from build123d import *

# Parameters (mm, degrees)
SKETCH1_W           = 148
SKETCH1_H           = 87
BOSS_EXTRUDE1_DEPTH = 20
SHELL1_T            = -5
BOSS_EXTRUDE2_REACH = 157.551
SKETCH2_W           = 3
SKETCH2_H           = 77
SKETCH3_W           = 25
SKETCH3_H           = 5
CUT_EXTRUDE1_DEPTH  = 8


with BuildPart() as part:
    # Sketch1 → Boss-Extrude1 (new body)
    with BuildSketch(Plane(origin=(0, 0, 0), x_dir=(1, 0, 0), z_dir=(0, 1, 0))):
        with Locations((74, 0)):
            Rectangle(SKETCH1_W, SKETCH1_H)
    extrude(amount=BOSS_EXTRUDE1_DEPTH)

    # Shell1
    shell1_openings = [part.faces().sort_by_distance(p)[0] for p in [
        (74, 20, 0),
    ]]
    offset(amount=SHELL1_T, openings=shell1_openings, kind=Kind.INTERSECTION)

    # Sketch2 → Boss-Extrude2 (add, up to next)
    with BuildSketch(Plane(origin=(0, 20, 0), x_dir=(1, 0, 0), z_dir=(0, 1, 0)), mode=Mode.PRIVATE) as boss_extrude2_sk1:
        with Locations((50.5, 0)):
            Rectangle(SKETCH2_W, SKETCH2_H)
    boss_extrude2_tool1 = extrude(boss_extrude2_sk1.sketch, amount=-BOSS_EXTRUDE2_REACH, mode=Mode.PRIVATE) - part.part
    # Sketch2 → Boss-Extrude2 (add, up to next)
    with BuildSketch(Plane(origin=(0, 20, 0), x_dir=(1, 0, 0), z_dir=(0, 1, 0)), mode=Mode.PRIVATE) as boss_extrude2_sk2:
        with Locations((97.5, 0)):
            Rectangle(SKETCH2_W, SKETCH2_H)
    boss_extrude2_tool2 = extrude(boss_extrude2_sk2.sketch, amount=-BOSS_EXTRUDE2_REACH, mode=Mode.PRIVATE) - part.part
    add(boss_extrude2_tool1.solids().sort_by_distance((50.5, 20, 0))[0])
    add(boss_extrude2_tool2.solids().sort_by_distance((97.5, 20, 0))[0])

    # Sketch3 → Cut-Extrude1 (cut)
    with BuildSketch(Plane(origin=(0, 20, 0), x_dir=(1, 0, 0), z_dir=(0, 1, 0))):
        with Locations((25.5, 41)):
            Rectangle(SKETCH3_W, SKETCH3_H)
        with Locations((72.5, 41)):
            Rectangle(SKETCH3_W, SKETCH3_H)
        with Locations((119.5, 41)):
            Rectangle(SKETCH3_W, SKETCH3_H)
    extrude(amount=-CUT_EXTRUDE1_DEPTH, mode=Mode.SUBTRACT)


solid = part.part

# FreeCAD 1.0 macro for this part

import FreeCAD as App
import Part
import Sketcher

V = App.Vector
Q = App.Units.Quantity


def faces_at(feature, points):
    """Names of the faces that lie closest to the given points."""
    faces = feature.Shape.Faces
    near = lambda p: min(range(len(faces)), key=lambda i: faces[i].distToShape(Part.Vertex(*p))[0])
    return sorted({f"Face{near(p) + 1}" for p in points})


def add_polygon(sketch, points):
    """Adds a closed chain of lines whose ends are joined by coincident constraints."""
    first, n = sketch.GeometryCount, len(points)
    for a, b in zip(points, points[1:] + points[:1]):
        sketch.addGeometry(Part.LineSegment(App.Vector(*a, 0), App.Vector(*b, 0)), False)
    for i in range(n):
        sketch.addConstraint(Sketcher.Constraint("Coincident", first + i, 2, first + (i + 1) % n, 1))

doc = App.newDocument("Part")
body = doc.addObject("PartDesign::Body", "Body")

# Sketch on XZ plane
sketch1 = body.newObject("Sketcher::SketchObject", "Sketch")
sketch1.AttachmentSupport = (doc.getObject("XZ_Plane"), [""])
sketch1.MapMode = "FlatFace"
add_polygon(sketch1, [(0, -44), (0, 44), (148, 44), (148, -44)])  # lines 0-3
sketch1.addConstraint(Sketcher.Constraint("Vertical", 0))
sketch1.addConstraint(Sketcher.Constraint("Horizontal", 1))
sketch1.addConstraint(Sketcher.Constraint("Vertical", 2))
sketch1.addConstraint(Sketcher.Constraint("Horizontal", 3))
sketch1.addConstraint(Sketcher.Constraint("Symmetric", 0, 2, 3, 2, -1, 1))
sketch1.addConstraint(Sketcher.Constraint("DistanceX", 1, 1, 1, 2, Q("148 mm")))
sketch1.addConstraint(Sketcher.Constraint("DistanceY", 0, 1, 0, 2, Q("87 mm")))
pad1 = body.newObject("PartDesign::Pad", "Pad")
pad1.Profile = sketch1
pad1.Length = 20
pad1.Reversed = True
doc.recompute()

thickness = body.newObject("PartDesign::Thickness", "Thickness")
thickness.Base = (pad1, faces_at(pad1, [(74, 20, 0)]))
thickness.Value = 5
thickness.Reversed = True
thickness.Join = "Intersection"

# Sketch on XZ plane
sketch2 = body.newObject("Sketcher::SketchObject", "Sketch001")
sketch2.AttachmentSupport = (doc.getObject("XZ_Plane"), [""])
sketch2.MapMode = "FlatFace"
sketch2.AttachmentOffset = App.Placement(V(0, 0, -20), App.Rotation())
add_polygon(sketch2, [(49, -38.5), (49, 38.5), (52, 38.5), (52, -38.5)])  # lines 0-3
sketch2.addConstraint(Sketcher.Constraint("Vertical", 0))
sketch2.addConstraint(Sketcher.Constraint("Horizontal", 1))
sketch2.addConstraint(Sketcher.Constraint("Vertical", 2))
sketch2.addConstraint(Sketcher.Constraint("Horizontal", 3))
sketch2.addConstraint(Sketcher.Constraint("DistanceX", 1, 1, 1, 2, Q("3 mm")))
sketch2.addConstraint(Sketcher.Constraint("DistanceY", 0, 1, 0, 2, Q("77 mm")))
sketch2.addConstraint(Sketcher.Constraint("DistanceX", -1, 1, 0, 2, Q("49 mm")))
sketch2.addConstraint(Sketcher.Constraint("DistanceY", -1, 1, 0, 2, Q("38.5 mm")))
pad2 = body.newObject("PartDesign::Pad", "Pad001")
pad2.Profile = sketch2
pad2.Type = "UpToFirst"

# Sketch on XZ plane
sketch3 = body.newObject("Sketcher::SketchObject", "Sketch002")
sketch3.AttachmentSupport = (doc.getObject("XZ_Plane"), [""])
sketch3.MapMode = "FlatFace"
sketch3.AttachmentOffset = App.Placement(V(0, 0, -20), App.Rotation())
add_polygon(sketch3, [(96, -38.5), (96, 38.5), (99, 38.5), (99, -38.5)])  # lines 0-3
sketch3.addConstraint(Sketcher.Constraint("Vertical", 0))
sketch3.addConstraint(Sketcher.Constraint("Horizontal", 1))
sketch3.addConstraint(Sketcher.Constraint("Vertical", 2))
sketch3.addConstraint(Sketcher.Constraint("Horizontal", 3))
sketch3.addConstraint(Sketcher.Constraint("DistanceX", 1, 1, 1, 2, Q("3 mm")))
sketch3.addConstraint(Sketcher.Constraint("DistanceY", 0, 1, 0, 2, Q("77 mm")))
sketch3.addConstraint(Sketcher.Constraint("DistanceX", -1, 1, 0, 2, Q("96 mm")))
sketch3.addConstraint(Sketcher.Constraint("DistanceY", -1, 1, 0, 2, Q("38.5 mm")))
pad3 = body.newObject("PartDesign::Pad", "Pad002")
pad3.Profile = sketch3
pad3.Type = "UpToFirst"

# Sketch on XZ plane
sketch4 = body.newObject("Sketcher::SketchObject", "Sketch003")
sketch4.AttachmentSupport = (doc.getObject("XZ_Plane"), [""])
sketch4.MapMode = "FlatFace"
sketch4.AttachmentOffset = App.Placement(V(0, 0, -20), App.Rotation())
add_polygon(sketch4, [(13, -44), (13, -38), (38, -38), (38, -44)])  # lines 0-3
add_polygon(sketch4, [(60, -44), (60, -38), (85, -38), (85, -44)])  # lines 4-7
add_polygon(sketch4, [(107, -44), (107, -38), (132, -38), (132, -44)])  # lines 8-11
sketch4.addConstraint(Sketcher.Constraint("Vertical", 0))
sketch4.addConstraint(Sketcher.Constraint("Horizontal", 1))
sketch4.addConstraint(Sketcher.Constraint("Vertical", 2))
sketch4.addConstraint(Sketcher.Constraint("Horizontal", 3))
sketch4.addConstraint(Sketcher.Constraint("Vertical", 4))
sketch4.addConstraint(Sketcher.Constraint("Horizontal", 5))
sketch4.addConstraint(Sketcher.Constraint("Vertical", 6))
sketch4.addConstraint(Sketcher.Constraint("Horizontal", 7))
sketch4.addConstraint(Sketcher.Constraint("Vertical", 8))
sketch4.addConstraint(Sketcher.Constraint("Horizontal", 9))
sketch4.addConstraint(Sketcher.Constraint("Vertical", 10))
sketch4.addConstraint(Sketcher.Constraint("Horizontal", 11))
sketch4.addConstraint(Sketcher.Constraint("Horizontal", 1, 2, 4, 2))
sketch4.addConstraint(Sketcher.Constraint("Horizontal", 3, 2, 6, 2))
sketch4.addConstraint(Sketcher.Constraint("Horizontal", 5, 2, 8, 2))
sketch4.addConstraint(Sketcher.Constraint("Horizontal", 7, 2, 10, 2))
sketch4.addConstraint(Sketcher.Constraint("Equal", 3, 5))
sketch4.addConstraint(Sketcher.Constraint("Equal", 7, 9))
sketch4.addConstraint(Sketcher.Constraint("DistanceX", 1, 1, 1, 2, Q("25 mm")))
sketch4.addConstraint(Sketcher.Constraint("DistanceY", 0, 1, 0, 2, Q("5 mm")))
sketch4.addConstraint(Sketcher.Constraint("DistanceX", -1, 1, 0, 2, Q("13 mm")))
sketch4.addConstraint(Sketcher.Constraint("DistanceX", -1, 1, 4, 2, Q("60 mm")))
sketch4.addConstraint(Sketcher.Constraint("DistanceX", -1, 1, 8, 2, Q("107 mm")))
sketch4.addConstraint(Sketcher.Constraint("DistanceY", 0, 2, -1, 1, Q("38.5 mm")))
pocket1 = body.newObject("PartDesign::Pocket", "Pocket")
pocket1.Profile = sketch4
pocket1.Length = 8
pocket1.Reversed = True

doc.recompute()
